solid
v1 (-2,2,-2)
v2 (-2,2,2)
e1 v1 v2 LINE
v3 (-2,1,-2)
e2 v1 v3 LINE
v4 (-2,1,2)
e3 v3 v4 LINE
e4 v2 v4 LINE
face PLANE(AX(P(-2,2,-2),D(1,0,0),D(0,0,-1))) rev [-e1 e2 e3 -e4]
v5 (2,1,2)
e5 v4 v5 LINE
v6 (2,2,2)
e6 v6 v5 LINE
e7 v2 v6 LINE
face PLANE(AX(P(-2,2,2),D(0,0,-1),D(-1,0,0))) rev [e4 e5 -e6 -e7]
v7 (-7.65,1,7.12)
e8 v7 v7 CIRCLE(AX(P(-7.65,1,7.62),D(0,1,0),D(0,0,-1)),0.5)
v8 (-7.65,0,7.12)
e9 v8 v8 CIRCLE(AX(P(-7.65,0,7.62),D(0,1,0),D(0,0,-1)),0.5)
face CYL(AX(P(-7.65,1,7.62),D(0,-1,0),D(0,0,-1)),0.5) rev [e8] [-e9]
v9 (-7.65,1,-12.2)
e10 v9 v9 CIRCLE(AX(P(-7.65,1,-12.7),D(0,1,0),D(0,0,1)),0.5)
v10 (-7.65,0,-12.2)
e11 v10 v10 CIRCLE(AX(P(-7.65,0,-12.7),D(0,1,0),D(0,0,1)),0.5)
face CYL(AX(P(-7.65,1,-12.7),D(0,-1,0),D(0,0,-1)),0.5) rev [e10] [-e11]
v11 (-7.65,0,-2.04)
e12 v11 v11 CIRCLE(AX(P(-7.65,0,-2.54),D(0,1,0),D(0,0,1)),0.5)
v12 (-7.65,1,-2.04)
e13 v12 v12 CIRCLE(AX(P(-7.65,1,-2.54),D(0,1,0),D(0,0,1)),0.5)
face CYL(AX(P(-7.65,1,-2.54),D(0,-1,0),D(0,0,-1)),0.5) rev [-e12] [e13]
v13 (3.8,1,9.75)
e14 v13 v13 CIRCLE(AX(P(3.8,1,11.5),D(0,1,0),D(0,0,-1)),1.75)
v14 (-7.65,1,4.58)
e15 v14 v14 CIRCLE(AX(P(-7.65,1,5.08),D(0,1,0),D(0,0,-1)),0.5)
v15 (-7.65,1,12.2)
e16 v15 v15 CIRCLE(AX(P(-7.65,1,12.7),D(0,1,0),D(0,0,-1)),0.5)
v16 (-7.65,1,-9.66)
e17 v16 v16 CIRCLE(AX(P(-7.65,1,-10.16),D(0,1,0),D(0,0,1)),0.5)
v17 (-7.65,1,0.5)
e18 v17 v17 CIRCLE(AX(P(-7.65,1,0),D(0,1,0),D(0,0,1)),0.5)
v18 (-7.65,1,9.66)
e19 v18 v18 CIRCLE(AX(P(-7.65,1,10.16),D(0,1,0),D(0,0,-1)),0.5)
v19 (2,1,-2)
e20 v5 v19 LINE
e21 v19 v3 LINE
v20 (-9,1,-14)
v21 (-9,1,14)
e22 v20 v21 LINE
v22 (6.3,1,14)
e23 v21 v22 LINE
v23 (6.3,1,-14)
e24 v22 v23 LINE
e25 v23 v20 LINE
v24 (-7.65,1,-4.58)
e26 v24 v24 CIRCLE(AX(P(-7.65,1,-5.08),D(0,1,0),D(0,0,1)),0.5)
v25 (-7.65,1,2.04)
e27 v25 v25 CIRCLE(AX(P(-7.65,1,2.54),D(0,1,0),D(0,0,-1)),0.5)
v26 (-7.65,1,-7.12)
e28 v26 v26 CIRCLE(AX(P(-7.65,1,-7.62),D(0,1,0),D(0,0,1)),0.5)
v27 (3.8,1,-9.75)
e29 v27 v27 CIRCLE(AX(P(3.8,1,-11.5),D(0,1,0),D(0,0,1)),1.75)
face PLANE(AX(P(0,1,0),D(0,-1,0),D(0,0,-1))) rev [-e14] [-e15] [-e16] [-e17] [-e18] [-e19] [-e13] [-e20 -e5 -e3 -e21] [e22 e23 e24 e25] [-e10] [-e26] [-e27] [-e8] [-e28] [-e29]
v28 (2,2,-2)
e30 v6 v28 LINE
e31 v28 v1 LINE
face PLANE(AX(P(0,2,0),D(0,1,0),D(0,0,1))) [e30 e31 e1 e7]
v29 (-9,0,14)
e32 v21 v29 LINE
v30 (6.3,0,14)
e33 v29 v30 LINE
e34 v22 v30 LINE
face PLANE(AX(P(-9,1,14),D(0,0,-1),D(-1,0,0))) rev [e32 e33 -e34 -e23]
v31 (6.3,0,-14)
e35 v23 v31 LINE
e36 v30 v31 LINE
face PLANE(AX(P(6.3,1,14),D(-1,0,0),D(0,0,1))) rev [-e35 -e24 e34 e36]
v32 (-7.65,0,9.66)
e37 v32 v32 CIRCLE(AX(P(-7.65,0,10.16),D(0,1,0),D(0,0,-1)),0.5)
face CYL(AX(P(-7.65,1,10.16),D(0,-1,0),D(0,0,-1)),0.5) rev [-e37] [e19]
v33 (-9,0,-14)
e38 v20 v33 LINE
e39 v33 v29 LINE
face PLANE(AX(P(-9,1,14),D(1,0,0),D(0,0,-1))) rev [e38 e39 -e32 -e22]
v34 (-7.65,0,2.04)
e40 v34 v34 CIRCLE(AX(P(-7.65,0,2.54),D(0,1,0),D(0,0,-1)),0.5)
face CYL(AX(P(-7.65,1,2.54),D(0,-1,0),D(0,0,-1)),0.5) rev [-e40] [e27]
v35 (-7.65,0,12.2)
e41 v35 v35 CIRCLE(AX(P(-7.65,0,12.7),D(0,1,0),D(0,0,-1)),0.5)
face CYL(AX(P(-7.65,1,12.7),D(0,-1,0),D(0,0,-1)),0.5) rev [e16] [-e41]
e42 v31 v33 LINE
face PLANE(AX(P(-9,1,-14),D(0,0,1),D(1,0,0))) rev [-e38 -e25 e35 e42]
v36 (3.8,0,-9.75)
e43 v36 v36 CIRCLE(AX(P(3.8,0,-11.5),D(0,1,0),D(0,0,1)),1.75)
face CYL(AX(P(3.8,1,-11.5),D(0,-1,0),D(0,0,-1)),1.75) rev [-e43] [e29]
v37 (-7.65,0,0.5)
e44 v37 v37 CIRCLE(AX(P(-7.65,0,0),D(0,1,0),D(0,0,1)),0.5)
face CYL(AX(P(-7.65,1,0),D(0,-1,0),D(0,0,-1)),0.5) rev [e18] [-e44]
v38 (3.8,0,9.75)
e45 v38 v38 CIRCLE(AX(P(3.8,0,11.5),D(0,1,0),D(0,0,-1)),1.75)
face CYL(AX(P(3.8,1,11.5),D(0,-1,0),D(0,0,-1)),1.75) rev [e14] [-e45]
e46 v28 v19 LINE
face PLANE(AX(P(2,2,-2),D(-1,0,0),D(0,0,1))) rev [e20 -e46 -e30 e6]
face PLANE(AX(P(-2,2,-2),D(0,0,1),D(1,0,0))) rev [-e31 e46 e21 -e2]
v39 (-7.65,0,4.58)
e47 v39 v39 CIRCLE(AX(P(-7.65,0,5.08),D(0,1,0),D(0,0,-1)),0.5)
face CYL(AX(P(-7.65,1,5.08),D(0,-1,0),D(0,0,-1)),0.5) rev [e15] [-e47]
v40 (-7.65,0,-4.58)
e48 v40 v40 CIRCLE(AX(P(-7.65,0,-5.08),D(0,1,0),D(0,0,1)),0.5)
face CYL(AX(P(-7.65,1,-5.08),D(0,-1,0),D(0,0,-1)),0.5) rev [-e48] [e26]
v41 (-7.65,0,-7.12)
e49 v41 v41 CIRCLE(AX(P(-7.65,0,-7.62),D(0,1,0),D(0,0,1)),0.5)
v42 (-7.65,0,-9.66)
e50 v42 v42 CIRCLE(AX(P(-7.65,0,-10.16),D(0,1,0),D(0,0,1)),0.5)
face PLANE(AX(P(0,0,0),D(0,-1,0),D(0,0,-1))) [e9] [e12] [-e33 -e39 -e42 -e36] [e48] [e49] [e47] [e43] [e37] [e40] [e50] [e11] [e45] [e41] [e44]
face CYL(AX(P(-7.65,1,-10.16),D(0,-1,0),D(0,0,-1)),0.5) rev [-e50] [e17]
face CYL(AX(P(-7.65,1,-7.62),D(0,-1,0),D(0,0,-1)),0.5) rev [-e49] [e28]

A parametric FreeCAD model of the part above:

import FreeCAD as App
import Part
import Sketcher

V = App.Vector
Q = App.Units.Quantity


def add_polygon(sketch, points):
    """Adds a closed chain of lines whose ends are joined by coincident constraints."""
    first, n = sketch.GeometryCount, len(points)
    for a, b in zip(points, points[1:] + points[:1]):
        sketch.addGeometry(Part.LineSegment(App.Vector(*a, 0), App.Vector(*b, 0)), False)
    for i in range(n):
        sketch.addConstraint(Sketcher.Constraint("Coincident", first + i, 2, first + (i + 1) % n, 1))

doc = App.newDocument("Part")
body = doc.addObject("PartDesign::Body", "Body")

sketch1 = body.newObject("Sketcher::SketchObject", "Sketch")
sketch1.AttachmentSupport = (doc.getObject("XZ_Plane"), [""])
sketch1.MapMode = "FlatFace"
add_polygon(sketch1, [(-9, -14), (-9, 14), (6.3, 14), (6.3, -14)])
sketch1.addGeometry(Part.Circle(V(-7.7, 12.7, 0), V(0, 0, 1), 0.5), False)
sketch1.addGeometry(Part.Circle(V(-7.7, 10.2, 0), V(0, 0, 1), 0.5), False)
sketch1.addGeometry(Part.Circle(V(-7.7, 7.6, 0), V(0, 0, 1), 0.5), False)
sketch1.addGeometry(Part.Circle(V(-7.7, 5.1, 0), V(0, 0, 1), 0.5), False)
sketch1.addGeometry(Part.Circle(V(-7.7, 2.5, 0), V(0, 0, 1), 0.5), False)
sketch1.addGeometry(Part.Circle(V(3.8, 11.5, 0), V(0, 0, 1), 1.8), False)
sketch1.addGeometry(Part.Circle(V(-7.7, 0, 0), V(0, 0, 1), 0.5), False)
sketch1.addGeometry(Part.Circle(V(-7.7, -2.5, 0), V(0, 0, 1), 0.5), False)
sketch1.addGeometry(Part.Circle(V(-7.7, -5.1, 0), V(0, 0, 1), 0.5), False)
sketch1.addGeometry(Part.Circle(V(-7.7, -7.6, 0), V(0, 0, 1), 0.5), False)
sketch1.addGeometry(Part.Circle(V(-7.7, -10.2, 0), V(0, 0, 1), 0.5), False)
sketch1.addGeometry(Part.Circle(V(-7.7, -12.7, 0), V(0, 0, 1), 0.5), False)
sketch1.addGeometry(Part.Circle(V(3.8, -11.5, 0), V(0, 0, 1), 1.8), False)
sketch1.addConstraint([
    Sketcher.Constraint("Vertical", 0),
    Sketcher.Constraint("Horizontal", 1),
    Sketcher.Constraint("Vertical", 2),
    Sketcher.Constraint("Horizontal", 3),
    Sketcher.Constraint("Equal", 4, 5),
    Sketcher.Constraint("Equal", 5, 6),
    Sketcher.Constraint("Equal", 6, 7),
    Sketcher.Constraint("Equal", 7, 8),
    Sketcher.Constraint("Equal", 8, 10),
    Sketcher.Constraint("Equal", 10, 11),
    Sketcher.Constraint("Equal", 11, 12),
    Sketcher.Constraint("Equal", 12, 13),
    Sketcher.Constraint("Equal", 13, 14),
    Sketcher.Constraint("Equal", 14, 15),
    Sketcher.Constraint("Equal", 9, 16),
    Sketcher.Constraint("Symmetric", 8, 3, 11, 3, -1),
    Sketcher.Constraint("Symmetric", 7, 3, 12, 3, -1),
    Sketcher.Constraint("Symmetric", 6, 3, 13, 3, -1),
    Sketcher.Constraint("Symmetric", 5, 3, 14, 3, -1),
    Sketcher.Constraint("Symmetric", 4, 3, 15, 3, -1),
    Sketcher.Constraint("Symmetric", 9, 3, 16, 3, -1),
    Sketcher.Constraint("PointOnObject", 10, 3, -1),
    Sketcher.Constraint("Vertical", 4, 3, 5, 3),
    Sketcher.Constraint("Vertical", 5, 3, 6, 3),
    Sketcher.Constraint("Vertical", 6, 3, 7, 3),
    Sketcher.Constraint("Vertical", 7, 3, 8, 3),
    Sketcher.Constraint("Vertical", 8, 3, 10, 3),
    Sketcher.Constraint("Diameter", 4, Q("1 mm")),
    Sketcher.Constraint("Diameter", 9, Q("3.5 mm")),
    Sketcher.Constraint("DistanceY", 0, 1, 0, 2, Q("28 mm")),
    Sketcher.Constraint("DistanceX", 1, 1, 1, 2, Q("15.3 mm")),
    Sketcher.Constraint("DistanceX", 0, 2, -1, 1, Q("9 mm")),
    Sketcher.Constraint("DistanceY", -1, 1, 0, 2, Q("14 mm")),
    Sketcher.Constraint("DistanceY", -1, 1, 4, 3, Q("12.7 mm")),
    Sketcher.Constraint("DistanceX", -1, 1, 9, 3, Q("3.8 mm")),
    Sketcher.Constraint("DistanceY", -1, 1, 9, 3, Q("11.5 mm")),
    Sketcher.Constraint("DistanceY", 11, 3, 5, 3, Q("12.7 mm")),
    Sketcher.Constraint("DistanceY", 12, 3, 6, 3, Q("12.7 mm")),
    Sketcher.Constraint("DistanceX", 4, 3, -1, 1, Q("7.65 mm")),
    Sketcher.Constraint("DistanceY", -1, 1, 5, 3, Q("10.16 mm")),
    Sketcher.Constraint("DistanceY", -1, 1, 6, 3, Q("7.62 mm")),
])
pad1 = body.newObject("PartDesign::Pad", "Pad")
pad1.Profile = sketch1
pad1.Length = 1
pad1.Reversed = True

sketch2 = body.newObject("Sketcher::SketchObject", "Sketch001")
sketch2.AttachmentSupport = (doc.getObject("XZ_Plane"), [""])
sketch2.MapMode = "FlatFace"
sketch2.AttachmentOffset = App.Placement(V(0, 0, -1), App.Rotation())
add_polygon(sketch2, [(-2, -2), (-2, 2), (2, 2), (2, -2)])
sketch2.addConstraint([
    Sketcher.Constraint("Vertical", 0),
    Sketcher.Constraint("Horizontal", 1),
    Sketcher.Constraint("Vertical", 2),
    Sketcher.Constraint("Horizontal", 3),
    Sketcher.Constraint("Symmetric", 0, 2, 2, 2, -1, 1),
    Sketcher.Constraint("Equal", 3, 0),
    Sketcher.Constraint("DistanceX", 1, 1, 1, 2, Q("4 mm")),
])
pad2 = body.newObject("PartDesign::Pad", "Pad001")
pad2.Profile = sketch2
pad2.Length = 1
pad2.Reversed = True

doc.recompute()
